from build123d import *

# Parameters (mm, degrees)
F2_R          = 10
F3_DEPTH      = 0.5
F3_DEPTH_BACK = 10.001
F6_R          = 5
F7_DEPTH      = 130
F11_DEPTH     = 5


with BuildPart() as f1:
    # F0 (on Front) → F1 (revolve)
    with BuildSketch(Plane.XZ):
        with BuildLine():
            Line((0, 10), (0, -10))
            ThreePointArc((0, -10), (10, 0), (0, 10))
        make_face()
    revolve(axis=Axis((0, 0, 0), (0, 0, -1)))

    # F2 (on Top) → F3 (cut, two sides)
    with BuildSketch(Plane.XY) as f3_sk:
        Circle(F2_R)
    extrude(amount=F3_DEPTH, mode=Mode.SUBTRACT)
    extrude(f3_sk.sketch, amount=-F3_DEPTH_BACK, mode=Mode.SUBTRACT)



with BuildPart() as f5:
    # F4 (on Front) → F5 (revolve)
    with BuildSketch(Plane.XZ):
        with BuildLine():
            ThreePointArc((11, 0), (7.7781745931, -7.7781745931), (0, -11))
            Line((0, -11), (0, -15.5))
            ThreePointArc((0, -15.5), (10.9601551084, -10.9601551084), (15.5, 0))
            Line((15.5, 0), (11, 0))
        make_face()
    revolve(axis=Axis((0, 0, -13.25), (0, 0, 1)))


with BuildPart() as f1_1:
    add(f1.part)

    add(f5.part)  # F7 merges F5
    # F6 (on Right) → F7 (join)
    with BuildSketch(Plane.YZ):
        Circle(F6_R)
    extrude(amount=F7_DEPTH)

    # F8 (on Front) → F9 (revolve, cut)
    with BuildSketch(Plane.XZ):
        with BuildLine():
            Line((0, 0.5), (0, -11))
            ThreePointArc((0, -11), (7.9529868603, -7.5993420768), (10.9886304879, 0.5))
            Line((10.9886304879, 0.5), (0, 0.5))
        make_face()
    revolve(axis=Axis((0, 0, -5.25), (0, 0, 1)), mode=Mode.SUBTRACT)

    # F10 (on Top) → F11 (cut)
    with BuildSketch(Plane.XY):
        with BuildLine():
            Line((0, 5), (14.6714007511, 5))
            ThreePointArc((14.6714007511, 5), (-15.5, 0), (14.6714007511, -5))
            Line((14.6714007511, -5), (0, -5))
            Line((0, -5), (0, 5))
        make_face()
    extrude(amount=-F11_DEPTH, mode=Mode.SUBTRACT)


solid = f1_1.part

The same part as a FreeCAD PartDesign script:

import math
import FreeCAD as App
import Part
import Sketcher
from FreeCAD import Vector

doc = App.newDocument("Part")
body = doc.addObject("PartDesign::Body", "Body")

sketch1 = body.newObject("Sketcher::SketchObject", "Sketch")
sketch1.AttachmentSupport = (doc.getObject("XZ_Plane"), [""])
sketch1.MapMode = "FlatFace"
sketch1.addGeometry(Part.LineSegment(Vector(0, 10, 0), Vector(0, -10, 0)), False)
sketch1.addGeometry(Part.ArcOfCircle(Part.Circle(Vector(0, 0, 0), Vector(0, 0, 1), 10), math.radians(-90), math.radians(90)), False)
sketch1.addConstraint(Sketcher.Constraint("Coincident", 0, 1, 1, 2))
sketch1.addConstraint(Sketcher.Constraint("Coincident", 1, 1, 0, 2))
sketch1.addConstraint(Sketcher.Constraint("Vertical", 0))
sketch1.addConstraint(Sketcher.Constraint("Coincident", 1, 3, -1, 1))
sketch1.addConstraint(Sketcher.Constraint("PointOnObject", 0, 1, -2))
sketch1.addConstraint(Sketcher.Constraint("Radius", 1, 10.0))
revolution = body.newObject("PartDesign::Revolution", "Revolution")
revolution.Profile = sketch1
revolution.ReferenceAxis = (sketch1, ["V_Axis"])
revolution.Angle = 360

sketch2 = body.newObject("Sketcher::SketchObject", "Sketch001")
sketch2.AttachmentSupport = (doc.getObject("XY_Plane"), [""])
sketch2.MapMode = "FlatFace"
sketch2.addGeometry(Part.Circle(Vector(0, 0, 0), Vector(0, 0, 1), 10), False)
sketch2.addConstraint(Sketcher.Constraint("Coincident", 0, 3, -1, 1))
sketch2.addConstraint(Sketcher.Constraint("Diameter", 0, 20.0))
pocket1 = body.newObject("PartDesign::Pocket", "Pocket")
pocket1.Profile = sketch2
pocket1.Type = "TwoLengths"
pocket1.Length = 0.5
pocket1.Length2 = 10.001
pocket1.Reversed = True
body2 = doc.addObject("PartDesign::Body", "Body001")

sketch3 = body2.newObject("Sketcher::SketchObject", "Sketch002")
sketch3.AttachmentSupport = (doc.getObject("XZ_Plane001"), [""])
sketch3.MapMode = "FlatFace"
sketch3.addGeometry(Part.ArcOfCircle(Part.Circle(Vector(0, 0, 0), Vector(0, 0, 1), 11), math.radians(-90), math.radians(0)), False)
sketch3.addGeometry(Part.LineSegment(Vector(0, -11, 0), Vector(0, -15.5, 0)), False)
sketch3.addGeometry(Part.ArcOfCircle(Part.Circle(Vector(0, 0, 0), Vector(0, 0, 1), 15.5), math.radians(-90), math.radians(0)), False)
sketch3.addGeometry(Part.LineSegment(Vector(15.5, 0, 0), Vector(11, 0, 0)), False)
sketch3.addConstraint(Sketcher.Constraint("Coincident", 0, 1, 1, 1))
sketch3.addConstraint(Sketcher.Constraint("Coincident", 1, 2, 2, 1))
sketch3.addConstraint(Sketcher.Constraint("Coincident", 2, 2, 3, 1))
sketch3.addConstraint(Sketcher.Constraint("Coincident", 3, 2, 0, 2))
sketch3.addConstraint(Sketcher.Constraint("Vertical", 1))
sketch3.addConstraint(Sketcher.Constraint("Horizontal", 3))
sketch3.addConstraint(Sketcher.Constraint("Coincident", 0, 3, -1, 1))
sketch3.addConstraint(Sketcher.Constraint("Coincident", 2, 3, -1, 1))
sketch3.addConstraint(Sketcher.Constraint("PointOnObject", 0, 1, -2))
sketch3.addConstraint(Sketcher.Constraint("PointOnObject", 2, 2, -1))
sketch3.addConstraint(Sketcher.Constraint("Radius", 0, 11.0))
sketch3.addConstraint(Sketcher.Constraint("Radius", 2, 15.5))
revolution2 = body2.newObject("PartDesign::Revolution", "Revolution001")
revolution2.Profile = sketch3
revolution2.ReferenceAxis = (sketch3, ["V_Axis"])
revolution2.Angle = 360
body.AllowCompound = True
doc.recompute()

boolean = body.newObject("PartDesign::Boolean", "Boolean")
boolean.Type = "Fuse"
boolean.addObjects([body2])

sketch4 = body.newObject("Sketcher::SketchObject", "Sketch003")
sketch4.AttachmentSupport = (doc.getObject("YZ_Plane"), [""])
sketch4.MapMode = "FlatFace"
sketch4.addGeometry(Part.Circle(Vector(0, 0, 0), Vector(0, 0, 1), 5), False)
sketch4.addConstraint(Sketcher.Constraint("Coincident", 0, 3, -1, 1))
sketch4.addConstraint(Sketcher.Constraint("Diameter", 0, 10.0))
pad1 = body.newObject("PartDesign::Pad", "Pad")
pad1.Profile = sketch4
pad1.Length = 130

sketch5 = body.newObject("Sketcher::SketchObject", "Sketch004")
sketch5.AttachmentSupport = (doc.getObject("XZ_Plane"), [""])
sketch5.MapMode = "FlatFace"
sketch5.addGeometry(Part.LineSegment(Vector(0, 0.5, 0), Vector(0, -11, 0)), False)
sketch5.addGeometry(Part.ArcOfCircle(Part.Circle(Vector(0, 0, 0), Vector(0, 0, 1), 11), math.radians(-90), math.radians(2.605251)), False)
sketch5.addGeometry(Part.LineSegment(Vector(10.98863, 0.5, 0), Vector(0, 0.5, 0)), False)
sketch5.addConstraint(Sketcher.Constraint("Coincident", 0, 2, 1, 1))
sketch5.addConstraint(Sketcher.Constraint("Coincident", 1, 2, 2, 1))
sketch5.addConstraint(Sketcher.Constraint("Coincident", 2, 2, 0, 1))
sketch5.addConstraint(Sketcher.Constraint("Vertical", 0))
sketch5.addConstraint(Sketcher.Constraint("Horizontal", 2))
sketch5.addConstraint(Sketcher.Constraint("Coincident", 1, 3, -1, 1))
sketch5.addConstraint(Sketcher.Constraint("PointOnObject", 0, 2, -2))
sketch5.addConstraint(Sketcher.Constraint("Radius", 1, 11.0))
sketch5.addConstraint(Sketcher.Constraint("DistanceY", 0, 2, 0, 1, 11.5))
groove = body.newObject("PartDesign::Groove", "Groove")
groove.Profile = sketch5
groove.ReferenceAxis = (sketch5, ["V_Axis"])
groove.Angle = 360

sketch6 = body.newObject("Sketcher::SketchObject", "Sketch005")
sketch6.AttachmentSupport = (doc.getObject("XY_Plane"), [""])
sketch6.MapMode = "FlatFace"
sketch6.addGeometry(Part.LineSegment(Vector(0, 5, 0), Vector(14.671401, 5, 0)), False)
sketch6.addGeometry(Part.ArcOfCircle(Part.Circle(Vector(0, 0, 0), Vector(0, 0, 1), 15.5), math.radians(18.819063), math.radians(341.180937)), False)
sketch6.addGeometry(Part.LineSegment(Vector(14.671401, -5, 0), Vector(0, -5, 0)), False)
sketch6.addGeometry(Part.LineSegment(Vector(0, -5, 0), Vector(0, 5, 0)), False)
sketch6.addConstraint(Sketcher.Constraint("Coincident", 0, 2, 1, 1))
sketch6.addConstraint(Sketcher.Constraint("Coincident", 1, 2, 2, 1))
sketch6.addConstraint(Sketcher.Constraint("Coincident", 2, 2, 3, 1))
sketch6.addConstraint(Sketcher.Constraint("Coincident", 3, 2, 0, 1))
sketch6.addConstraint(Sketcher.Constraint("Horizontal", 0))
sketch6.addConstraint(Sketcher.Constraint("Horizontal", 2))
sketch6.addConstraint(Sketcher.Constraint("Vertical", 3))
sketch6.addConstraint(Sketcher.Constraint("Coincident", 1, 3, -1, 1))
sketch6.addConstraint(Sketcher.Constraint("Symmetric", 2, 2, 3, 2, -1, 1))
sketch6.addConstraint(Sketcher.Constraint("Radius", 1, 15.5))
sketch6.addConstraint(Sketcher.Constraint("DistanceY", 3, 1, 3, 2, 10.0))
pocket2 = body.newObject("PartDesign::Pocket", "Pocket001")
pocket2.Profile = sketch6
pocket2.Length = 5

doc.recompute()
